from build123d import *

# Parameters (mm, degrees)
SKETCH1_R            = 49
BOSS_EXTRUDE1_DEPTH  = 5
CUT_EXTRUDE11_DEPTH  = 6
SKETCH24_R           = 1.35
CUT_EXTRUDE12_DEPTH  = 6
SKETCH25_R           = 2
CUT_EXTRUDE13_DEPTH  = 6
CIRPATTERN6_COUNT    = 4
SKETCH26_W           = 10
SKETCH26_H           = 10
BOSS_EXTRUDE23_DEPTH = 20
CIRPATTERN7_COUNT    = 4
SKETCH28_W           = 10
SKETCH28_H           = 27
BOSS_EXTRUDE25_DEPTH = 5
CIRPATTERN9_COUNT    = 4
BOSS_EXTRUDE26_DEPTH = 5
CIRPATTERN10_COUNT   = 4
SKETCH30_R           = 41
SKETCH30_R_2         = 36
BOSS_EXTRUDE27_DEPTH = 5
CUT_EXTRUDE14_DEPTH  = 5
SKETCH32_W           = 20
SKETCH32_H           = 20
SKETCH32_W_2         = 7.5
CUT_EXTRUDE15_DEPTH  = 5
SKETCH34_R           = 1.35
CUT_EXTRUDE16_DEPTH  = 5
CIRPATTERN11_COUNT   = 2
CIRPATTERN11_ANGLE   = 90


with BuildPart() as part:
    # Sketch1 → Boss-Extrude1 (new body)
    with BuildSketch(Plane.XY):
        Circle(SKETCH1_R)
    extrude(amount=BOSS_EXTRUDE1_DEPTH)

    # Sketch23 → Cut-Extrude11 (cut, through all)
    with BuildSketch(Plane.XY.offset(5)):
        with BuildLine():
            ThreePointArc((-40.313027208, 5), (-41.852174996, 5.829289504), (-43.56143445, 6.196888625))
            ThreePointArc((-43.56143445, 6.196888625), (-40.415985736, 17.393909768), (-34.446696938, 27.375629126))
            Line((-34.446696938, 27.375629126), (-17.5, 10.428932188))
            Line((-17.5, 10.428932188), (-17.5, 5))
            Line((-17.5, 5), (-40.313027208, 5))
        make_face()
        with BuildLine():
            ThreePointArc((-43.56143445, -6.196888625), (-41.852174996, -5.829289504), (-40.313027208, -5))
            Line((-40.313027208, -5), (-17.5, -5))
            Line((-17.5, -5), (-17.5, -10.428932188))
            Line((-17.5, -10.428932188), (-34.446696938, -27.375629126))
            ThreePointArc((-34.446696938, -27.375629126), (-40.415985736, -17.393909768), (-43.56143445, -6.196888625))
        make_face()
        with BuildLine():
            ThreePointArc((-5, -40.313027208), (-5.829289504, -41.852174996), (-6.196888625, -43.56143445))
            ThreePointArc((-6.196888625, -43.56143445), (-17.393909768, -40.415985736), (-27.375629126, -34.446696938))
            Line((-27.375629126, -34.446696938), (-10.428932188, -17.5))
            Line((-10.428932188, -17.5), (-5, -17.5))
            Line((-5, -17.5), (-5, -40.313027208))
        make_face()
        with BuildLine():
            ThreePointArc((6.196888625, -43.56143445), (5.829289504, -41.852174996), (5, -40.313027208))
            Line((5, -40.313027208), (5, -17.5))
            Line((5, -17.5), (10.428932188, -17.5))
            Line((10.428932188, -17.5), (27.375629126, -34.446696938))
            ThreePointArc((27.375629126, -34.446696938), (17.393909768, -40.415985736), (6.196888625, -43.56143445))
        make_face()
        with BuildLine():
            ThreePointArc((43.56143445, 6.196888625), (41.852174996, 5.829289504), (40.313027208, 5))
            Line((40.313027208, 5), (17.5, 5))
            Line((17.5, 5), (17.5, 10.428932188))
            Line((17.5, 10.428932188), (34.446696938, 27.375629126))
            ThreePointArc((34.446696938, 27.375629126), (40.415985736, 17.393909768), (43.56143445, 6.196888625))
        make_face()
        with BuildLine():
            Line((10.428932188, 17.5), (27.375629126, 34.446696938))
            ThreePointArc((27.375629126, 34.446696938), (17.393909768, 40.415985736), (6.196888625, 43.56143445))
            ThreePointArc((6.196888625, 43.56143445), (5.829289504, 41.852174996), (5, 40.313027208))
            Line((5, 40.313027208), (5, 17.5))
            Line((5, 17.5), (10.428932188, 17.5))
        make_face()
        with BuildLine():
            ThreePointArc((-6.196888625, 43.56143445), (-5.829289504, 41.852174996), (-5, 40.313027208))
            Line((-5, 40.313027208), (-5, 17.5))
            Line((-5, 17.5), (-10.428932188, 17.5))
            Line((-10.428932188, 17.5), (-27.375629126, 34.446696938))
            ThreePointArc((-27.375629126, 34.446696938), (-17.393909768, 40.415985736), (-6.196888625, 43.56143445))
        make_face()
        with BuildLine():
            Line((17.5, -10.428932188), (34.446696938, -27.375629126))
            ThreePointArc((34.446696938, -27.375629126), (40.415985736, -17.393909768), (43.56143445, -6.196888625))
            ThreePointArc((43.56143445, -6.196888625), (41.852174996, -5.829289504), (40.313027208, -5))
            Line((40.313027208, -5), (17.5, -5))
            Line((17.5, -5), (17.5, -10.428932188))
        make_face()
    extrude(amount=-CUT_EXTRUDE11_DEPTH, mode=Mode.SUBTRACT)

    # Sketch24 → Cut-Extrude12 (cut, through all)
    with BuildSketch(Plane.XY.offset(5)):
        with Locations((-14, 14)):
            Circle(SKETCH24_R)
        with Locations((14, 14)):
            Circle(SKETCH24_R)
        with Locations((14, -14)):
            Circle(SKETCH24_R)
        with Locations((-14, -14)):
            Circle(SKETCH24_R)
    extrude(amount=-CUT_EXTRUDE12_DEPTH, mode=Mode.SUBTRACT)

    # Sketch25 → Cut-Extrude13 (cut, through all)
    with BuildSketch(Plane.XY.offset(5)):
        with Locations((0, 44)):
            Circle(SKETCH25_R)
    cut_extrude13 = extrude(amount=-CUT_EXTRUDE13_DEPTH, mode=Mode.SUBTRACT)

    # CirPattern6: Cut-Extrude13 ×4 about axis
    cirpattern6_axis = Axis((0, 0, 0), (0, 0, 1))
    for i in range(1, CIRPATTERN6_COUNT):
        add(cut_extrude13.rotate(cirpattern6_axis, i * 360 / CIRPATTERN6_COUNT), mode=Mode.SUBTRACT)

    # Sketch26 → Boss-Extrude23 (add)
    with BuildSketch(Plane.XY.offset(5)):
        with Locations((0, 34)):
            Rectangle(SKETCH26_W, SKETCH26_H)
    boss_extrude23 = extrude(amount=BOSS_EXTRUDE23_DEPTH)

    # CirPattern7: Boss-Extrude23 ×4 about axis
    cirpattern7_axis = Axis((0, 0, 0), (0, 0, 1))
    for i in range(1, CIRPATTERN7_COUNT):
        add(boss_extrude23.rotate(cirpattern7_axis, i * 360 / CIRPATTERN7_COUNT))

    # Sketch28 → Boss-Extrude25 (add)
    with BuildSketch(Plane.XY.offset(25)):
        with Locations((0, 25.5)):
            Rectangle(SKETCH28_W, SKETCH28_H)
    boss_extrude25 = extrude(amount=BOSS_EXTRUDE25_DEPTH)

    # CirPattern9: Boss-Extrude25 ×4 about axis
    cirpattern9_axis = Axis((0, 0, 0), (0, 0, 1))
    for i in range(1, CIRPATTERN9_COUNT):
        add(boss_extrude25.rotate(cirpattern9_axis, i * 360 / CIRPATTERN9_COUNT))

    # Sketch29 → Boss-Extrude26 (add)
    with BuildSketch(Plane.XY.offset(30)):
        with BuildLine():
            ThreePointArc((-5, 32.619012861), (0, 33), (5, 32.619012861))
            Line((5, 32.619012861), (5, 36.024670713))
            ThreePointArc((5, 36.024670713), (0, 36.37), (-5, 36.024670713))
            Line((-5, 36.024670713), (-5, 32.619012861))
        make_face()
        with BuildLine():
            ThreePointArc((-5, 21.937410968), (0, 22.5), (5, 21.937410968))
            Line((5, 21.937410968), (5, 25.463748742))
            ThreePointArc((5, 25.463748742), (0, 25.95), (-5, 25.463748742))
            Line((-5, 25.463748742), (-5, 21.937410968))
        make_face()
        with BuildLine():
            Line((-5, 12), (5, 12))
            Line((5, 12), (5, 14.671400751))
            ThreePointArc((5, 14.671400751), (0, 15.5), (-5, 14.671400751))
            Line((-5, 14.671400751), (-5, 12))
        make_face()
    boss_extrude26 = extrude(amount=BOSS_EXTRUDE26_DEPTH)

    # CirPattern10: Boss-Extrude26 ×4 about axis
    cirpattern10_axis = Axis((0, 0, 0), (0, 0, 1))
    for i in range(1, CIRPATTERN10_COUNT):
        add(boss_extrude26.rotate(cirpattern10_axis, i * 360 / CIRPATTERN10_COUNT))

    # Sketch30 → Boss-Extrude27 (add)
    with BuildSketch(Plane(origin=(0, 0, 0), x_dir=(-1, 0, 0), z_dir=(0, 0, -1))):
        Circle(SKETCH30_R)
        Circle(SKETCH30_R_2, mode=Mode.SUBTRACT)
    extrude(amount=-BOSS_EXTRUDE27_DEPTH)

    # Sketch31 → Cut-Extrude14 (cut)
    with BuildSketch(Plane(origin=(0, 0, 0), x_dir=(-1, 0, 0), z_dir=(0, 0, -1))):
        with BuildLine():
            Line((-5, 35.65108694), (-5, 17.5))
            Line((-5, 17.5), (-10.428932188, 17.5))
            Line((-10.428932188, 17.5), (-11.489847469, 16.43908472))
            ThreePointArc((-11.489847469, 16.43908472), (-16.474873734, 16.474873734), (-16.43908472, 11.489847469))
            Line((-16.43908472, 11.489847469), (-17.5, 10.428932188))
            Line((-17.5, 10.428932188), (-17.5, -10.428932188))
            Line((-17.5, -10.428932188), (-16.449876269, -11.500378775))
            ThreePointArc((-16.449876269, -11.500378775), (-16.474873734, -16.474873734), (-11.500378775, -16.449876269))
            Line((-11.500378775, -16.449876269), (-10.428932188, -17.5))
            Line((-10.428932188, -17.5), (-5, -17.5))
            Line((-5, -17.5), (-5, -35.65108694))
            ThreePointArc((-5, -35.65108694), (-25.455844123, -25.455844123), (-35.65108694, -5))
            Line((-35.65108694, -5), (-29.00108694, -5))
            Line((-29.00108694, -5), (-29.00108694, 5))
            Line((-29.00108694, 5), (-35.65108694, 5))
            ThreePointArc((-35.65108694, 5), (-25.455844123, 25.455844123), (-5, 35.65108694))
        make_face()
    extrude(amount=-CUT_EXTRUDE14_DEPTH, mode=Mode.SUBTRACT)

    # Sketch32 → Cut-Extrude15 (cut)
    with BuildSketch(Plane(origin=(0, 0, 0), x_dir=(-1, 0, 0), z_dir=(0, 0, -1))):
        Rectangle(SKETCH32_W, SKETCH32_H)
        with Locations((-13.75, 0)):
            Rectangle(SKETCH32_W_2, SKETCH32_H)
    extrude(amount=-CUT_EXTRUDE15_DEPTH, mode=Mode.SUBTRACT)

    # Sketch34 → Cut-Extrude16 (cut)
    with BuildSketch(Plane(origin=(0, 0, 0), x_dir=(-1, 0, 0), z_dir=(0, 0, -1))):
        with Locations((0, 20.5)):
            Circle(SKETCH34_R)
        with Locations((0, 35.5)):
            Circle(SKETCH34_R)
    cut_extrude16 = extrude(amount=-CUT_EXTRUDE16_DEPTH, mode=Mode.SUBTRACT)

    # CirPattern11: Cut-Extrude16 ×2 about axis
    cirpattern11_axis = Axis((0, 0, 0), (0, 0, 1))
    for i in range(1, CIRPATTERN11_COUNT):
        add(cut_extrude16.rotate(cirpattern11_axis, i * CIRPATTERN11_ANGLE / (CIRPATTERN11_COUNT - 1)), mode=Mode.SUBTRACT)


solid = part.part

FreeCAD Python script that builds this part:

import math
import FreeCAD as App
import Part
import Sketcher

V = App.Vector
Q = App.Units.Quantity


def add_polygon(sketch, points):
    """Adds a closed chain of lines whose ends are joined by coincident constraints."""
    first, n = sketch.GeometryCount, len(points)
    for a, b in zip(points, points[1:] + points[:1]):
        sketch.addGeometry(Part.LineSegment(App.Vector(*a, 0), App.Vector(*b, 0)), False)
    for i in range(n):
        sketch.addConstraint(Sketcher.Constraint("Coincident", first + i, 2, first + (i + 1) % n, 1))

doc = App.newDocument("Part")
params = doc.addObject("Spreadsheet::Sheet", "Params")
for row, (alias, value) in enumerate([
    ("sketch1_diameter", "98 mm"),
    ("pad1_length", "5 mm"),
    ("sketch2_radius", "44 mm"),
    ("sketch3_diameter", "2.7 mm"),
    ("sketch4_diameter", "4 mm"),
    ("sketch5_width", "10 mm"),
    ("pad2_length", "20 mm"),
    ("sketch6_width", "10 mm"),
    ("sketch6_height", "27 mm"),
    ("pad3_length", "5 mm"),
    ("sketch7_radius", "33 mm"),
    ("sketch7_radius2", "22.5 mm"),
    ("sketch7_radius3", "15.5 mm"),
    ("sketch7_width", "10 mm"),
    ("sketch7_radius4", "36.37 mm"),
    ("pad4_length", "5 mm"),
    ("sketch8_diameter", "82 mm"),
    ("sketch8_diameter2", "72 mm"),
    ("pad5_length", "5 mm"),
    ("sketch9_radius", "36 mm"),
    ("sketch9_radius2", "3.5 mm"),
    ("sketch9_height", "10 mm"),
    ("sketch9_width", "6.65 mm"),
    ("pocket4_length", "5 mm"),
    ("sketch10_height", "20 mm"),
    ("sketch10_width", "27.5 mm"),
    ("pocket5_length", "5 mm"),
    ("sketch11_diameter", "2.7 mm"),
    ("pocket6_length", "5 mm"),
], start=1):
    params.set(f"A{row}", alias)
    params.set(f"B{row}", "=" + value)
    params.setAlias(f"B{row}", alias)

body = doc.addObject("PartDesign::Body", "Body")

# Sketch on XY plane
sketch1 = body.newObject("Sketcher::SketchObject", "Sketch")
sketch1.AttachmentSupport = (doc.getObject("XY_Plane"), [""])
sketch1.MapMode = "FlatFace"
sketch1.addGeometry(Part.Circle(V(0, 0, 0), V(0, 0, 1), 49), False)
sketch1.addConstraint([
    Sketcher.Constraint("Coincident", 0, 3, -1, 1),
    Sketcher.Constraint("Diameter", 0, Q("98 mm")),
])
sketch1.setExpression("Constraints[1]", "Params.sketch1_diameter")
pad1 = body.newObject("PartDesign::Pad", "Pad")
pad1.Profile = sketch1
pad1.setExpression("Length", "Params.pad1_length")

# Sketch on XY plane
sketch2 = body.newObject("Sketcher::SketchObject", "Sketch001")
sketch2.AttachmentSupport = (doc.getObject("XY_Plane"), [""])
sketch2.MapMode = "FlatFace"
sketch2.AttachmentOffset = App.Placement(V(0, 0, 5), App.Rotation())
sketch2.addGeometry([
    Part.ArcOfCircle(Part.Circle(V(-44, 0, 0), V(0, 0, 1), 6.2), math.radians(54), math.radians(86)),  # 0
    Part.LineSegment(V(-40.3, 5, 0), V(-17.5, 5, 0)),  # 1
    Part.LineSegment(V(-17.5, 5, 0), V(-17.5, 10.4, 0)),  # 2
    Part.LineSegment(V(-17.5, 10.4, 0), V(-34.4, 27.4, 0)),  # 3
    Part.ArcOfCircle(Part.Circle(V(0, 0, 0), V(0, 0, 1), 44), math.radians(142), math.radians(172)),  # 4
    Part.ArcOfCircle(Part.Circle(V(-44, 0, 0), V(0, 0, 1), 6.2), math.radians(-86), math.radians(-54)),  # 5
    Part.ArcOfCircle(Part.Circle(V(0, 0, 0), V(0, 0, 1), 44), math.radians(-172), math.radians(-142)),  # 6
    Part.LineSegment(V(-34.4, -27.4, 0), V(-17.5, -10.4, 0)),  # 7
    Part.LineSegment(V(-17.5, -10.4, 0), V(-17.5, -5, 0)),  # 8
    Part.LineSegment(V(-17.5, -5, 0), V(-40.3, -5, 0)),  # 9
    Part.ArcOfCircle(Part.Circle(V(0, -44, 0), V(0, 0, 1), 6.2), math.radians(144), math.radians(176)),  # 10
    Part.LineSegment(V(-5, -40.3, 0), V(-5, -17.5, 0)),  # 11
    Part.LineSegment(V(-5, -17.5, 0), V(-10.4, -17.5, 0)),  # 12
    Part.LineSegment(V(-10.4, -17.5, 0), V(-27.4, -34.4, 0)),  # 13
    Part.ArcOfCircle(Part.Circle(V(0, 0, 0), V(0, 0, 1), 44), math.radians(-128), math.radians(-98)),  # 14
    Part.ArcOfCircle(Part.Circle(V(0, -44, 0), V(0, 0, 1), 6.2), math.radians(4), math.radians(36)),  # 15
    Part.ArcOfCircle(Part.Circle(V(0, 0, 0), V(0, 0, 1), 44), math.radians(-82), math.radians(-52)),  # 16
    Part.LineSegment(V(27.4, -34.4, 0), V(10.4, -17.5, 0)),  # 17
    Part.LineSegment(V(10.4, -17.5, 0), V(5, -17.5, 0)),  # 18
    Part.LineSegment(V(5, -17.5, 0), V(5, -40.3, 0)),  # 19
    Part.ArcOfCircle(Part.Circle(V(44, 0, 0), V(0, 0, 1), 6.2), math.radians(94), math.radians(126)),  # 20
    Part.ArcOfCircle(Part.Circle(V(0, 0, 0), V(0, 0, 1), 44), math.radians(8), math.radians(38)),  # 21
    Part.LineSegment(V(34.4, 27.4, 0), V(17.5, 10.4, 0)),  # 22
    Part.LineSegment(V(17.5, 10.4, 0), V(17.5, 5, 0)),  # 23
    Part.LineSegment(V(17.5, 5, 0), V(40.3, 5, 0)),  # 24
    Part.LineSegment(V(10.4, 17.5, 0), V(27.4, 34.4, 0)),  # 25
    Part.ArcOfCircle(Part.Circle(V(0, 0, 0), V(0, 0, 1), 44), math.radians(52), math.radians(82)),  # 26
    Part.ArcOfCircle(Part.Circle(V(0, 44, 0), V(0, 0, 1), 6.2), math.radians(-36), math.radians(-4)),  # 27
    Part.LineSegment(V(5, 40.3, 0), V(5, 17.5, 0)),  # 28
    Part.LineSegment(V(5, 17.5, 0), V(10.4, 17.5, 0)),  # 29
    Part.ArcOfCircle(Part.Circle(V(0, 44, 0), V(0, 0, 1), 6.2), math.radians(-176), math.radians(-144)),  # 30
    Part.ArcOfCircle(Part.Circle(V(0, 0, 0), V(0, 0, 1), 44), math.radians(98), math.radians(128)),  # 31
    Part.LineSegment(V(-27.4, 34.4, 0), V(-10.4, 17.5, 0)),  # 32
    Part.LineSegment(V(-10.4, 17.5, 0), V(-5, 17.5, 0)),  # 33
    Part.LineSegment(V(-5, 17.5, 0), V(-5, 40.3, 0)),  # 34
    Part.LineSegment(V(17.5, -10.4, 0), V(34.4, -27.4, 0)),  # 35
    Part.ArcOfCircle(Part.Circle(V(0, 0, 0), V(0, 0, 1), 44), math.radians(-38), math.radians(-8)),  # 36
    Part.ArcOfCircle(Part.Circle(V(44, 0, 0), V(0, 0, 1), 6.2), math.radians(-126), math.radians(-94)),  # 37
    Part.LineSegment(V(40.3, -5, 0), V(17.5, -5, 0)),  # 38
    Part.LineSegment(V(17.5, -5, 0), V(17.5, -10.4, 0)),  # 39
], False)
sketch2.addConstraint([
    Sketcher.Constraint("Coincident", 0, 1, 1, 1),
    Sketcher.Constraint("Coincident", 1, 2, 2, 1),
    Sketcher.Constraint("Coincident", 2, 2, 3, 1),
    Sketcher.Constraint("Coincident", 3, 2, 4, 1),
    Sketcher.Constraint("Coincident", 4, 2, 0, 2),
    Sketcher.Constraint("Coincident", 5, 1, 6, 1),
    Sketcher.Constraint("Coincident", 6, 2, 7, 1),
    Sketcher.Constraint("Coincident", 7, 2, 8, 1),
    Sketcher.Constraint("Coincident", 8, 2, 9, 1),
    Sketcher.Constraint("Coincident", 9, 2, 5, 2),
    Sketcher.Constraint("Coincident", 10, 1, 11, 1),
    Sketcher.Constraint("Coincident", 11, 2, 12, 1),
    Sketcher.Constraint("Coincident", 12, 2, 13, 1),
    Sketcher.Constraint("Coincident", 13, 2, 14, 1),
    Sketcher.Constraint("Coincident", 14, 2, 10, 2),
    Sketcher.Constraint("Coincident", 15, 1, 16, 1),
    Sketcher.Constraint("Coincident", 16, 2, 17, 1),
    Sketcher.Constraint("Coincident", 17, 2, 18, 1),
    Sketcher.Constraint("Coincident", 18, 2, 19, 1),
    Sketcher.Constraint("Coincident", 19, 2, 15, 2),
    Sketcher.Constraint("Coincident", 20, 1, 21, 1),
    Sketcher.Constraint("Coincident", 21, 2, 22, 1),
    Sketcher.Constraint("Coincident", 22, 2, 23, 1),
    Sketcher.Constraint("Coincident", 23, 2, 24, 1),
    Sketcher.Constraint("Coincident", 24, 2, 20, 2),
    Sketcher.Constraint("Coincident", 25, 2, 26, 1),
    Sketcher.Constraint("Coincident", 26, 2, 27, 2),
    Sketcher.Constraint("Coincident", 27, 1, 28, 1),
    Sketcher.Constraint("Coincident", 28, 2, 29, 1),
    Sketcher.Constraint("Coincident", 29, 2, 25, 1),
    Sketcher.Constraint("Coincident", 30, 1, 31, 1),
    Sketcher.Constraint("Coincident", 31, 2, 32, 1),
    Sketcher.Constraint("Coincident", 32, 2, 33, 1),
    Sketcher.Constraint("Coincident", 33, 2, 34, 1),
    Sketcher.Constraint("Coincident", 34, 2, 30, 2),
    Sketcher.Constraint("Coincident", 35, 2, 36, 1),
    Sketcher.Constraint("Coincident", 36, 2, 37, 2),
    Sketcher.Constraint("Coincident", 37, 1, 38, 1),
    Sketcher.Constraint("Coincident", 38, 2, 39, 1),
    Sketcher.Constraint("Coincident", 39, 2, 35, 1),
    Sketcher.Constraint("Horizontal", 1),
    Sketcher.Constraint("Vertical", 2),
    Sketcher.Constraint("Vertical", 8),
    Sketcher.Constraint("Horizontal", 9),
    Sketcher.Constraint("Vertical", 11),
    Sketcher.Constraint("Horizontal", 12),
    Sketcher.Constraint("Horizontal", 18),
    Sketcher.Constraint("Vertical", 19),
    Sketcher.Constraint("Vertical", 23),
    Sketcher.Constraint("Horizontal", 24),
    Sketcher.Constraint("Vertical", 28),
    Sketcher.Constraint("Horizontal", 29),
    Sketcher.Constraint("Horizontal", 33),
    Sketcher.Constraint("Vertical", 34),
    Sketcher.Constraint("Horizontal", 38),
    Sketcher.Constraint("Vertical", 39),
    Sketcher.Constraint("Coincident", 4, 3, -1, 1),
    Sketcher.Constraint("Coincident", 6, 3, -1, 1),
    Sketcher.Constraint("Coincident", 14, 3, -1, 1),
    Sketcher.Constraint("Coincident", 16, 3, -1, 1),
    Sketcher.Constraint("Coincident", 21, 3, -1, 1),
    Sketcher.Constraint("Coincident", 26, 3, -1, 1),
    Sketcher.Constraint("Coincident", 31, 3, -1, 1),
    Sketcher.Constraint("Coincident", 36, 3, -1, 1),
    Sketcher.Constraint("Coincident", 5, 3, 0, 3),
    Sketcher.Constraint("Coincident", 15, 3, 10, 3),
    Sketcher.Constraint("Coincident", 30, 3, 27, 3),
    Sketcher.Constraint("Coincident", 37, 3, 20, 3),
    Sketcher.Constraint("Equal", 0, 5),
    Sketcher.Constraint("Equal", 4, 6),
    Sketcher.Constraint("Equal", 5, 10),
    Sketcher.Constraint("Equal", 6, 14),
    Sketcher.Constraint("Equal", 10, 15),
    Sketcher.Constraint("Equal", 14, 16),
    Sketcher.Constraint("Equal", 15, 20),
    Sketcher.Constraint("Equal", 16, 21),
    Sketcher.Constraint("Equal", 21, 26),
    Sketcher.Constraint("Equal", 20, 27),
    Sketcher.Constraint("Equal", 27, 30),
    Sketcher.Constraint("Equal", 26, 31),
    Sketcher.Constraint("Equal", 31, 36),
    Sketcher.Constraint("Equal", 30, 37),
    Sketcher.Constraint("Symmetric", 0, 3, 20, 3, -1, 1),
    Sketcher.Constraint("Symmetric", 10, 3, 27, 3, -1, 1),
    Sketcher.Constraint("Symmetric", 7, 2, 22, 2, -1, 1),
    Sketcher.Constraint("Symmetric", 11, 2, 28, 2, -1, 1),
    Sketcher.Constraint("Symmetric", 17, 2, 32, 2, -1, 1),
    Sketcher.Constraint("Symmetric", 1, 2, 38, 2, -1, 1),
    Sketcher.Constraint("Symmetric", 12, 2, 17, 2, -2),
    Sketcher.Constraint("Symmetric", 10, 1, 19, 2, -2),
    Sketcher.Constraint("Symmetric", 2, 2, 22, 2, -2),
    Sketcher.Constraint("Symmetric", 0, 1, 24, 2, -2),
    Sketcher.Constraint("Perpendicular", 3, 7),
    Sketcher.Constraint("Parallel", 7, 13),
    Sketcher.Constraint("Perpendicular", 13, 17),
    Sketcher.Constraint("Perpendicular", 17, 22),
    Sketcher.Constraint("Parallel", 22, 25),
    Sketcher.Constraint("Perpendicular", 25, 32),
    Sketcher.Constraint("Parallel", 32, 35),
    Sketcher.Constraint("Horizontal", 13, 2, 16, 2),
    Sketcher.Constraint("Horizontal", 25, 2, 31, 2),
    Sketcher.Constraint("Horizontal", 27, 1, 34, 2),
    Sketcher.Constraint("Horizontal", 6, 2, 35, 2),
    Sketcher.Constraint("Horizontal", 9, 2, 37, 1),
    Sketcher.Constraint("Equal", 33, 2),
    Sketcher.Constraint("Equal", 38, 11),
    Sketcher.Constraint("Equal", 7, 13),
    Sketcher.Constraint("Radius", 4, Q("44 mm")),
    Sketcher.Constraint("DistanceX", 0, 3, -1, 1, Q("44 mm")),
    Sketcher.Constraint("DistanceY", 10, 3, -1, 1, Q("44 mm")),
    Sketcher.Constraint("DistanceY", -1, 1, 0, 1, Q("5 mm")),
    Sketcher.Constraint("DistanceX", 1, 2, -1, 1, Q("17.5 mm")),
    Sketcher.Constraint("Radius", 0, Q("6.212388 mm")),
    Sketcher.Constraint("DistanceY", 10, 1, 6, 2, Q("12.937398 mm")),
])
sketch2.setExpression("Constraints[107]", "Params.sketch2_radius")
pocket1 = body.newObject("PartDesign::Pocket", "Pocket")
pocket1.Profile = sketch2
pocket1.Type = "ThroughAll"

# Sketch on XY plane
sketch3 = body.newObject("Sketcher::SketchObject", "Sketch002")
sketch3.AttachmentSupport = (doc.getObject("XY_Plane"), [""])
sketch3.MapMode = "FlatFace"
sketch3.AttachmentOffset = App.Placement(V(0, 0, 5), App.Rotation())
sketch3.addGeometry([
    Part.Circle(V(-14, 14, 0), V(0, 0, 1), 1.4),
    Part.Circle(V(14, 14, 0), V(0, 0, 1), 1.4),
    Part.Circle(V(14, -14, 0), V(0, 0, 1), 1.4),
    Part.Circle(V(-14, -14, 0), V(0, 0, 1), 1.4),
], False)
sketch3.addConstraint([
    Sketcher.Constraint("Equal", 0, 1),
    Sketcher.Constraint("Equal", 1, 2),
    Sketcher.Constraint("Equal", 2, 3),
    Sketcher.Constraint("Symmetric", 0, 3, 2, 3, -1, 1),
    Sketcher.Constraint("Symmetric", 1, 3, 3, 3, -1, 1),
    Sketcher.Constraint("Symmetric", 0, 3, 1, 3, -2),
    Sketcher.Constraint("Diameter", 0, Q("2.7 mm")),
    Sketcher.Constraint("DistanceX", 0, 3, -1, 1, Q("14 mm")),
    Sketcher.Constraint("DistanceY", -1, 1, 0, 3, Q("14 mm")),
])
sketch3.setExpression("Constraints[6]", "Params.sketch3_diameter")
pocket2 = body.newObject("PartDesign::Pocket", "Pocket001")
pocket2.Profile = sketch3
pocket2.Type = "ThroughAll"

# Sketch on XY plane
sketch4 = body.newObject("Sketcher::SketchObject", "Sketch003")
sketch4.AttachmentSupport = (doc.getObject("XY_Plane"), [""])
sketch4.MapMode = "FlatFace"
sketch4.AttachmentOffset = App.Placement(V(0, 0, 5), App.Rotation())
sketch4.addGeometry(Part.Circle(V(0, 44, 0), V(0, 0, 1), 2), False)
sketch4.addConstraint([
    Sketcher.Constraint("PointOnObject", 0, 3, -2),
    Sketcher.Constraint("Diameter", 0, Q("4 mm")),
    Sketcher.Constraint("DistanceY", -1, 1, 0, 3, Q("44 mm")),
])
sketch4.setExpression("Constraints[1]", "Params.sketch4_diameter")
pocket3 = body.newObject("PartDesign::Pocket", "Pocket002")
pocket3.Profile = sketch4
pocket3.Type = "ThroughAll"
doc.recompute()

polarpattern = body.newObject("PartDesign::PolarPattern", "PolarPattern")
polarpattern.Originals = [pocket3]
polarpattern.Axis = (doc.getObject("Z_Axis"), [""])
polarpattern.Angle = 360
polarpattern.Occurrences = 4
body.Tip = polarpattern

# Sketch on XY plane
sketch5 = body.newObject("Sketcher::SketchObject", "Sketch004")
sketch5.AttachmentSupport = (doc.getObject("XY_Plane"), [""])
sketch5.MapMode = "FlatFace"
sketch5.AttachmentOffset = App.Placement(V(0, 0, 5), App.Rotation())
add_polygon(sketch5, [(-5, 39), (-5, 29), (5, 29), (5, 39)])  # lines 0-3
sketch5.addConstraint([
    Sketcher.Constraint("Vertical", 0),
    Sketcher.Constraint("Horizontal", 1),
    Sketcher.Constraint("Vertical", 2),
    Sketcher.Constraint("Horizontal", 3),
    Sketcher.Constraint("Equal", 3, 0),
    Sketcher.Constraint("DistanceX", 1, 1, 1, 2, Q("10 mm")),
    Sketcher.Constraint("DistanceX", 0, 2, -1, 1, Q("5 mm")),
    Sketcher.Constraint("DistanceY", -1, 1, 0, 2, Q("29 mm")),
])
sketch5.setExpression("Constraints[9]", "Params.sketch5_width")
pad2 = body.newObject("PartDesign::Pad", "Pad001")
pad2.Profile = sketch5
pad2.setExpression("Length", "Params.pad2_length")
doc.recompute()

polarpattern2 = body.newObject("PartDesign::PolarPattern", "PolarPattern001")
polarpattern2.Originals = [pad2]
polarpattern2.Axis = (doc.getObject("Z_Axis"), [""])
polarpattern2.Angle = 360
polarpattern2.Occurrences = 4
body.Tip = polarpattern2

# Sketch on XY plane
sketch6 = body.newObject("Sketcher::SketchObject", "Sketch005")
sketch6.AttachmentSupport = (doc.getObject("XY_Plane"), [""])
sketch6.MapMode = "FlatFace"
sketch6.AttachmentOffset = App.Placement(V(0, 0, 25), App.Rotation())
add_polygon(sketch6, [(-5, 39), (-5, 12), (5, 12), (5, 39)])  # lines 0-3
sketch6.addConstraint([
    Sketcher.Constraint("Vertical", 0),
    Sketcher.Constraint("Horizontal", 1),
    Sketcher.Constraint("Vertical", 2),
    Sketcher.Constraint("Horizontal", 3),
    Sketcher.Constraint("DistanceX", 1, 1, 1, 2, Q("10 mm")),
    Sketcher.Constraint("DistanceY", 0, 2, 0, 1, Q("27 mm")),
    Sketcher.Constraint("DistanceX", 0, 2, -1, 1, Q("5 mm")),
    Sketcher.Constraint("DistanceY", -1, 1, 0, 2, Q("12 mm")),
])
sketch6.setExpression("Constraints[8]", "Params.sketch6_width")
sketch6.setExpression("Constraints[9]", "Params.sketch6_height")
pad3 = body.newObject("PartDesign::Pad", "Pad002")
pad3.Profile = sketch6
pad3.setExpression("Length", "Params.pad3_length")
doc.recompute()

polarpattern3 = body.newObject("PartDesign::PolarPattern", "PolarPattern002")
polarpattern3.Originals = [pad3]
polarpattern3.Axis = (doc.getObject("Z_Axis"), [""])
polarpattern3.Angle = 360
polarpattern3.Occurrences = 4
body.Tip = polarpattern3

# Sketch on XY plane
sketch7 = body.newObject("Sketcher::SketchObject", "Sketch006")
sketch7.AttachmentSupport = (doc.getObject("XY_Plane"), [""])
sketch7.MapMode = "FlatFace"
sketch7.AttachmentOffset = App.Placement(V(0, 0, 30), App.Rotation())
sketch7.addGeometry([
    Part.ArcOfCircle(Part.Circle(V(0, 0, 0), V(0, 0, 1), 33), math.radians(81.29), math.radians(98.71)),  # 0
    Part.LineSegment(V(5, 32.6, 0), V(5, 36, 0)),  # 1
    Part.ArcOfCircle(Part.Circle(V(0, 0, 0), V(0, 0, 1), 36.4), math.radians(82.1), math.radians(97.9)),  # 2
    Part.LineSegment(V(-5, 36, 0), V(-5, 32.6, 0)),  # 3
    Part.ArcOfCircle(Part.Circle(V(0, 0, 0), V(0, 0, 1), 22.5), math.radians(77), math.radians(103)),  # 4
    Part.LineSegment(V(5, 21.9, 0), V(5, 25.5, 0)),  # 5
    Part.ArcOfCircle(Part.Circle(V(0, 0, 0), V(0, 0, 1), 25.9), math.radians(79), math.radians(101)),  # 6
    Part.LineSegment(V(-5, 25.5, 0), V(-5, 21.9, 0)),  # 7
    Part.LineSegment(V(-5, 12, 0), V(5, 12, 0)),  # 8
    Part.LineSegment(V(5, 12, 0), V(5, 14.7, 0)),  # 9
    Part.ArcOfCircle(Part.Circle(V(0, 0, 0), V(0, 0, 1), 15.5), math.radians(71), math.radians(109)),  # 10
    Part.LineSegment(V(-5, 14.7, 0), V(-5, 12, 0)),  # 11
], False)
sketch7.addConstraint([
    Sketcher.Constraint("Coincident", 0, 1, 1, 1),
    Sketcher.Constraint("Coincident", 1, 2, 2, 1),
    Sketcher.Constraint("Coincident", 2, 2, 3, 1),
    Sketcher.Constraint("Coincident", 3, 2, 0, 2),
    Sketcher.Constraint("Coincident", 4, 1, 5, 1),
    Sketcher.Constraint("Coincident", 5, 2, 6, 1),
    Sketcher.Constraint("Coincident", 6, 2, 7, 1),
    Sketcher.Constraint("Coincident", 7, 2, 4, 2),
    Sketcher.Constraint("Coincident", 8, 2, 9, 1),
    Sketcher.Constraint("Coincident", 9, 2, 10, 1),
    Sketcher.Constraint("Coincident", 10, 2, 11, 1),
    Sketcher.Constraint("Coincident", 11, 2, 8, 1),
    Sketcher.Constraint("Vertical", 1),
    Sketcher.Constraint("Vertical", 3),
    Sketcher.Constraint("Vertical", 5),
    Sketcher.Constraint("Vertical", 7),
    Sketcher.Constraint("Horizontal", 8),
    Sketcher.Constraint("Vertical", 9),
    Sketcher.Constraint("Vertical", 11),
    Sketcher.Constraint("Coincident", 0, 3, -1, 1),
    Sketcher.Constraint("Coincident", 2, 3, -1, 1),
    Sketcher.Constraint("Coincident", 4, 3, -1, 1),
    Sketcher.Constraint("Coincident", 6, 3, -1, 1),
    Sketcher.Constraint("Coincident", 10, 3, -1, 1),
    Sketcher.Constraint("Horizontal", 1, 2, 2, 2),
    Sketcher.Constraint("Horizontal", 5, 2, 6, 2),
    Sketcher.Constraint("Horizontal", 9, 2, 10, 2),
    Sketcher.Constraint("Vertical", 1, 2, 4, 1),
    Sketcher.Constraint("Vertical", 5, 2, 8, 2),
    Sketcher.Constraint("Radius", 0, Q("33 mm")),
    Sketcher.Constraint("Radius", 4, Q("22.5 mm")),
    Sketcher.Constraint("Radius", 10, Q("15.5 mm")),
    Sketcher.Constraint("DistanceX", 8, 1, 8, 2, Q("10 mm")),
    Sketcher.Constraint("Radius", 2, Q("36.37 mm")),
    Sketcher.Constraint("Radius", 6, Q("25.95 mm")),
    Sketcher.Constraint("DistanceY", -1, 1, 8, 2, Q("12 mm")),
])
sketch7.setExpression("Constraints[29]", "Params.sketch7_radius")
sketch7.setExpression("Constraints[30]", "Params.sketch7_radius2")
sketch7.setExpression("Constraints[31]", "Params.sketch7_radius3")
sketch7.setExpression("Constraints[32]", "Params.sketch7_width")
sketch7.setExpression("Constraints[33]", "Params.sketch7_radius4")
pad4 = body.newObject("PartDesign::Pad", "Pad003")
pad4.Profile = sketch7
pad4.setExpression("Length", "Params.pad4_length")
doc.recompute()

polarpattern4 = body.newObject("PartDesign::PolarPattern", "PolarPattern003")
polarpattern4.Originals = [pad4]
polarpattern4.Axis = (doc.getObject("Z_Axis"), [""])
polarpattern4.Angle = 360
polarpattern4.Occurrences = 4
body.Tip = polarpattern4

# Sketch on XY plane
sketch8 = body.newObject("Sketcher::SketchObject", "Sketch007")
sketch8.AttachmentSupport = (doc.getObject("XY_Plane"), [""])
sketch8.MapMode = "FlatFace"
sketch8.addGeometry([
    Part.Circle(V(0, 0, 0), V(0, 0, 1), 41),
    Part.Circle(V(0, 0, 0), V(0, 0, 1), 36),
], False)
sketch8.addConstraint([
    Sketcher.Constraint("Coincident", 0, 3, -1, 1),
    Sketcher.Constraint("Coincident", 1, 3, -1, 1),
    Sketcher.Constraint("Diameter", 0, Q("82 mm")),
    Sketcher.Constraint("Diameter", 1, Q("72 mm")),
])
sketch8.setExpression("Constraints[2]", "Params.sketch8_diameter")
sketch8.setExpression("Constraints[3]", "Params.sketch8_diameter2")
pad5 = body.newObject("PartDesign::Pad", "Pad004")
pad5.Profile = sketch8
pad5.setExpression("Length", "Params.pad5_length")

# Sketch on XY plane
sketch9 = body.newObject("Sketcher::SketchObject", "Sketch008")
sketch9.AttachmentSupport = (doc.getObject("XY_Plane"), [""])
sketch9.MapMode = "FlatFace"
sketch9.addGeometry([
    Part.LineSegment(V(5, 17.5, 0), V(5, 35.7, 0)),  # 0
    Part.ArcOfCircle(Part.Circle(V(0, 0, 0), V(0, 0, 1), 36), math.radians(8), math.radians(82)),  # 1
    Part.LineSegment(V(35.7, 5, 0), V(29, 5, 0)),  # 2
    Part.LineSegment(V(29, 5, 0), V(29, -5, 0)),  # 3
    Part.LineSegment(V(29, -5, 0), V(35.7, -5, 0)),  # 4
    Part.ArcOfCircle(Part.Circle(V(0, 0, 0), V(0, 0, 1), 36), math.radians(-82), math.radians(-8)),  # 5
    Part.LineSegment(V(5, -35.7, 0), V(5, -17.5, 0)),  # 6
    Part.LineSegment(V(5, -17.5, 0), V(10.4, -17.5, 0)),  # 7
    Part.LineSegment(V(10.4, -17.5, 0), V(11.5, -16.4, 0)),  # 8
    Part.ArcOfCircle(Part.Circle(V(14, -14, 0), V(0, 0, 1), 3.5), math.radians(-136), math.radians(46)),  # 9
    Part.LineSegment(V(16.4, -11.5, 0), V(17.5, -10.4, 0)),  # 10
    Part.LineSegment(V(17.5, -10.4, 0), V(17.5, 10.4, 0)),  # 11
    Part.LineSegment(V(17.5, 10.4, 0), V(16.4, 11.5, 0)),  # 12
    Part.ArcOfCircle(Part.Circle(V(14, 14, 0), V(0, 0, 1), 3.5), math.radians(-46), math.radians(136)),  # 13
    Part.LineSegment(V(11.5, 16.4, 0), V(10.4, 17.5, 0)),  # 14
    Part.LineSegment(V(10.4, 17.5, 0), V(5, 17.5, 0)),  # 15
], False)
sketch9.addConstraint([
    Sketcher.Constraint("Coincident", 0, 2, 1, 2),
    Sketcher.Constraint("Coincident", 1, 1, 2, 1),
    Sketcher.Constraint("Coincident", 2, 2, 3, 1),
    Sketcher.Constraint("Coincident", 3, 2, 4, 1),
    Sketcher.Constraint("Coincident", 4, 2, 5, 2),
    Sketcher.Constraint("Coincident", 5, 1, 6, 1),
    Sketcher.Constraint("Coincident", 6, 2, 7, 1),
    Sketcher.Constraint("Coincident", 7, 2, 8, 1),
    Sketcher.Constraint("Coincident", 8, 2, 9, 1),
    Sketcher.Constraint("Coincident", 9, 2, 10, 1),
    Sketcher.Constraint("Coincident", 10, 2, 11, 1),
    Sketcher.Constraint("Coincident", 11, 2, 12, 1),
    Sketcher.Constraint("Coincident", 12, 2, 13, 1),
    Sketcher.Constraint("Coincident", 13, 2, 14, 1),
    Sketcher.Constraint("Coincident", 14, 2, 15, 1),
    Sketcher.Constraint("Coincident", 15, 2, 0, 1),
    Sketcher.Constraint("Vertical", 0),
    Sketcher.Constraint("Horizontal", 2),
    Sketcher.Constraint("Vertical", 3),
    Sketcher.Constraint("Horizontal", 4),
    Sketcher.Constraint("Vertical", 6),
    Sketcher.Constraint("Horizontal", 7),
    Sketcher.Constraint("Vertical", 11),
    Sketcher.Constraint("Horizontal", 15),
    Sketcher.Constraint("Coincident", 1, 3, -1, 1),
    Sketcher.Constraint("Coincident", 5, 3, -1, 1),
    Sketcher.Constraint("Equal", 1, 5),
    Sketcher.Constraint("Equal", 9, 13),
    Sketcher.Constraint("Symmetric", 9, 3, 13, 3, -1),
    Sketcher.Constraint("Symmetric", 7, 2, 14, 2, -1),
    Sketcher.Constraint("Parallel", 12, 14),
    Sketcher.Constraint("Vertical", 1, 1, 4, 2),
    Sketcher.Constraint("Vertical", 0, 2, 5, 1),
    Sketcher.Constraint("Equal", 8, 10),
    Sketcher.Constraint("Equal", 12, 14),
    Sketcher.Constraint("Radius", 1, Q("36 mm")),
    Sketcher.Constraint("Radius", 9, Q("3.5 mm")),
    Sketcher.Constraint("DistanceY", 3, 2, 3, 1, Q("10 mm")),
    Sketcher.Constraint("Angle", 12, Q("135 deg")),
    Sketcher.Constraint("DistanceX", -1, 1, 9, 3, Q("14 mm")),
    Sketcher.Constraint("DistanceY", 9, 3, -1, 1, Q("14 mm")),
    Sketcher.Constraint("DistanceX", -1, 1, 0, 2, Q("5 mm")),
    Sketcher.Constraint("DistanceX", 2, 2, 2, 1, Q("6.65 mm")),
    Sketcher.Constraint("DistanceY", 6, 2, -1, 1, Q("17.5 mm")),
    Sketcher.Constraint("DistanceX", -1, 1, 10, 2, Q("17.5 mm")),
    Sketcher.Constraint("Distance", 12, Q("1.500361 mm")),
    Sketcher.Constraint("DistanceX", -1, 1, 8, 2, Q("11.500379 mm")),
    Sketcher.Constraint("DistanceY", 9, 2, -1, 1, Q("11.500379 mm")),
])
sketch9.setExpression("Constraints[35]", "Params.sketch9_radius")
sketch9.setExpression("Constraints[36]", "Params.sketch9_radius2")
sketch9.setExpression("Constraints[37]", "Params.sketch9_height")
sketch9.setExpression("Constraints[42]", "Params.sketch9_width")
pocket4 = body.newObject("PartDesign::Pocket", "Pocket003")
pocket4.Profile = sketch9
pocket4.setExpression("Length", "Params.pocket4_length")
pocket4.Reversed = True

# Sketch on XY plane
sketch10 = body.newObject("Sketcher::SketchObject", "Sketch009")
sketch10.AttachmentSupport = (doc.getObject("XY_Plane"), [""])
sketch10.MapMode = "FlatFace"
add_polygon(sketch10, [(-10, -10), (-10, 10), (18, 10), (18, -10)])  # lines 0-3
sketch10.addConstraint([
    Sketcher.Constraint("Vertical", 0),
    Sketcher.Constraint("Horizontal", 1),
    Sketcher.Constraint("Vertical", 2),
    Sketcher.Constraint("Horizontal", 3),
    Sketcher.Constraint("DistanceY", 0, 1, 0, 2, Q("20 mm")),
    Sketcher.Constraint("DistanceX", 1, 1, 1, 2, Q("27.5 mm")),
    Sketcher.Constraint("DistanceX", 0, 2, -1, 1, Q("10 mm")),
    Sketcher.Constraint("DistanceY", -1, 1, 0, 2, Q("10 mm")),
])
sketch10.setExpression("Constraints[8]", "Params.sketch10_height")
sketch10.setExpression("Constraints[9]", "Params.sketch10_width")
pocket5 = body.newObject("PartDesign::Pocket", "Pocket004")
pocket5.Profile = sketch10
pocket5.setExpression("Length", "Params.pocket5_length")
pocket5.Reversed = True

# Sketch on XY plane
sketch11 = body.newObject("Sketcher::SketchObject", "Sketch010")
sketch11.AttachmentSupport = (doc.getObject("XY_Plane"), [""])
sketch11.MapMode = "FlatFace"
sketch11.addGeometry([
    Part.Circle(V(0, 20.5, 0), V(0, 0, 1), 1.4),
    Part.Circle(V(0, 35.5, 0), V(0, 0, 1), 1.4),
], False)
sketch11.addConstraint([
    Sketcher.Constraint("Equal", 0, 1),
    Sketcher.Constraint("PointOnObject", 0, 3, -2),
    Sketcher.Constraint("PointOnObject", 1, 3, -2),
    Sketcher.Constraint("Diameter", 0, Q("2.7 mm")),
    Sketcher.Constraint("DistanceY", 0, 3, 1, 3, Q("15 mm")),
    Sketcher.Constraint("DistanceY", -1, 1, 0, 3, Q("20.5 mm")),
])
sketch11.setExpression("Constraints[3]", "Params.sketch11_diameter")
pocket6 = body.newObject("PartDesign::Pocket", "Pocket005")
pocket6.Profile = sketch11
pocket6.setExpression("Length", "Params.pocket6_length")
pocket6.Reversed = True
doc.recompute()

polarpattern5 = body.newObject("PartDesign::PolarPattern", "PolarPattern004")
polarpattern5.Originals = [pocket6]
polarpattern5.Axis = (doc.getObject("Z_Axis"), [""])
polarpattern5.Angle = 90
polarpattern5.Occurrences = 2
body.Tip = polarpattern5

doc.recompute()
